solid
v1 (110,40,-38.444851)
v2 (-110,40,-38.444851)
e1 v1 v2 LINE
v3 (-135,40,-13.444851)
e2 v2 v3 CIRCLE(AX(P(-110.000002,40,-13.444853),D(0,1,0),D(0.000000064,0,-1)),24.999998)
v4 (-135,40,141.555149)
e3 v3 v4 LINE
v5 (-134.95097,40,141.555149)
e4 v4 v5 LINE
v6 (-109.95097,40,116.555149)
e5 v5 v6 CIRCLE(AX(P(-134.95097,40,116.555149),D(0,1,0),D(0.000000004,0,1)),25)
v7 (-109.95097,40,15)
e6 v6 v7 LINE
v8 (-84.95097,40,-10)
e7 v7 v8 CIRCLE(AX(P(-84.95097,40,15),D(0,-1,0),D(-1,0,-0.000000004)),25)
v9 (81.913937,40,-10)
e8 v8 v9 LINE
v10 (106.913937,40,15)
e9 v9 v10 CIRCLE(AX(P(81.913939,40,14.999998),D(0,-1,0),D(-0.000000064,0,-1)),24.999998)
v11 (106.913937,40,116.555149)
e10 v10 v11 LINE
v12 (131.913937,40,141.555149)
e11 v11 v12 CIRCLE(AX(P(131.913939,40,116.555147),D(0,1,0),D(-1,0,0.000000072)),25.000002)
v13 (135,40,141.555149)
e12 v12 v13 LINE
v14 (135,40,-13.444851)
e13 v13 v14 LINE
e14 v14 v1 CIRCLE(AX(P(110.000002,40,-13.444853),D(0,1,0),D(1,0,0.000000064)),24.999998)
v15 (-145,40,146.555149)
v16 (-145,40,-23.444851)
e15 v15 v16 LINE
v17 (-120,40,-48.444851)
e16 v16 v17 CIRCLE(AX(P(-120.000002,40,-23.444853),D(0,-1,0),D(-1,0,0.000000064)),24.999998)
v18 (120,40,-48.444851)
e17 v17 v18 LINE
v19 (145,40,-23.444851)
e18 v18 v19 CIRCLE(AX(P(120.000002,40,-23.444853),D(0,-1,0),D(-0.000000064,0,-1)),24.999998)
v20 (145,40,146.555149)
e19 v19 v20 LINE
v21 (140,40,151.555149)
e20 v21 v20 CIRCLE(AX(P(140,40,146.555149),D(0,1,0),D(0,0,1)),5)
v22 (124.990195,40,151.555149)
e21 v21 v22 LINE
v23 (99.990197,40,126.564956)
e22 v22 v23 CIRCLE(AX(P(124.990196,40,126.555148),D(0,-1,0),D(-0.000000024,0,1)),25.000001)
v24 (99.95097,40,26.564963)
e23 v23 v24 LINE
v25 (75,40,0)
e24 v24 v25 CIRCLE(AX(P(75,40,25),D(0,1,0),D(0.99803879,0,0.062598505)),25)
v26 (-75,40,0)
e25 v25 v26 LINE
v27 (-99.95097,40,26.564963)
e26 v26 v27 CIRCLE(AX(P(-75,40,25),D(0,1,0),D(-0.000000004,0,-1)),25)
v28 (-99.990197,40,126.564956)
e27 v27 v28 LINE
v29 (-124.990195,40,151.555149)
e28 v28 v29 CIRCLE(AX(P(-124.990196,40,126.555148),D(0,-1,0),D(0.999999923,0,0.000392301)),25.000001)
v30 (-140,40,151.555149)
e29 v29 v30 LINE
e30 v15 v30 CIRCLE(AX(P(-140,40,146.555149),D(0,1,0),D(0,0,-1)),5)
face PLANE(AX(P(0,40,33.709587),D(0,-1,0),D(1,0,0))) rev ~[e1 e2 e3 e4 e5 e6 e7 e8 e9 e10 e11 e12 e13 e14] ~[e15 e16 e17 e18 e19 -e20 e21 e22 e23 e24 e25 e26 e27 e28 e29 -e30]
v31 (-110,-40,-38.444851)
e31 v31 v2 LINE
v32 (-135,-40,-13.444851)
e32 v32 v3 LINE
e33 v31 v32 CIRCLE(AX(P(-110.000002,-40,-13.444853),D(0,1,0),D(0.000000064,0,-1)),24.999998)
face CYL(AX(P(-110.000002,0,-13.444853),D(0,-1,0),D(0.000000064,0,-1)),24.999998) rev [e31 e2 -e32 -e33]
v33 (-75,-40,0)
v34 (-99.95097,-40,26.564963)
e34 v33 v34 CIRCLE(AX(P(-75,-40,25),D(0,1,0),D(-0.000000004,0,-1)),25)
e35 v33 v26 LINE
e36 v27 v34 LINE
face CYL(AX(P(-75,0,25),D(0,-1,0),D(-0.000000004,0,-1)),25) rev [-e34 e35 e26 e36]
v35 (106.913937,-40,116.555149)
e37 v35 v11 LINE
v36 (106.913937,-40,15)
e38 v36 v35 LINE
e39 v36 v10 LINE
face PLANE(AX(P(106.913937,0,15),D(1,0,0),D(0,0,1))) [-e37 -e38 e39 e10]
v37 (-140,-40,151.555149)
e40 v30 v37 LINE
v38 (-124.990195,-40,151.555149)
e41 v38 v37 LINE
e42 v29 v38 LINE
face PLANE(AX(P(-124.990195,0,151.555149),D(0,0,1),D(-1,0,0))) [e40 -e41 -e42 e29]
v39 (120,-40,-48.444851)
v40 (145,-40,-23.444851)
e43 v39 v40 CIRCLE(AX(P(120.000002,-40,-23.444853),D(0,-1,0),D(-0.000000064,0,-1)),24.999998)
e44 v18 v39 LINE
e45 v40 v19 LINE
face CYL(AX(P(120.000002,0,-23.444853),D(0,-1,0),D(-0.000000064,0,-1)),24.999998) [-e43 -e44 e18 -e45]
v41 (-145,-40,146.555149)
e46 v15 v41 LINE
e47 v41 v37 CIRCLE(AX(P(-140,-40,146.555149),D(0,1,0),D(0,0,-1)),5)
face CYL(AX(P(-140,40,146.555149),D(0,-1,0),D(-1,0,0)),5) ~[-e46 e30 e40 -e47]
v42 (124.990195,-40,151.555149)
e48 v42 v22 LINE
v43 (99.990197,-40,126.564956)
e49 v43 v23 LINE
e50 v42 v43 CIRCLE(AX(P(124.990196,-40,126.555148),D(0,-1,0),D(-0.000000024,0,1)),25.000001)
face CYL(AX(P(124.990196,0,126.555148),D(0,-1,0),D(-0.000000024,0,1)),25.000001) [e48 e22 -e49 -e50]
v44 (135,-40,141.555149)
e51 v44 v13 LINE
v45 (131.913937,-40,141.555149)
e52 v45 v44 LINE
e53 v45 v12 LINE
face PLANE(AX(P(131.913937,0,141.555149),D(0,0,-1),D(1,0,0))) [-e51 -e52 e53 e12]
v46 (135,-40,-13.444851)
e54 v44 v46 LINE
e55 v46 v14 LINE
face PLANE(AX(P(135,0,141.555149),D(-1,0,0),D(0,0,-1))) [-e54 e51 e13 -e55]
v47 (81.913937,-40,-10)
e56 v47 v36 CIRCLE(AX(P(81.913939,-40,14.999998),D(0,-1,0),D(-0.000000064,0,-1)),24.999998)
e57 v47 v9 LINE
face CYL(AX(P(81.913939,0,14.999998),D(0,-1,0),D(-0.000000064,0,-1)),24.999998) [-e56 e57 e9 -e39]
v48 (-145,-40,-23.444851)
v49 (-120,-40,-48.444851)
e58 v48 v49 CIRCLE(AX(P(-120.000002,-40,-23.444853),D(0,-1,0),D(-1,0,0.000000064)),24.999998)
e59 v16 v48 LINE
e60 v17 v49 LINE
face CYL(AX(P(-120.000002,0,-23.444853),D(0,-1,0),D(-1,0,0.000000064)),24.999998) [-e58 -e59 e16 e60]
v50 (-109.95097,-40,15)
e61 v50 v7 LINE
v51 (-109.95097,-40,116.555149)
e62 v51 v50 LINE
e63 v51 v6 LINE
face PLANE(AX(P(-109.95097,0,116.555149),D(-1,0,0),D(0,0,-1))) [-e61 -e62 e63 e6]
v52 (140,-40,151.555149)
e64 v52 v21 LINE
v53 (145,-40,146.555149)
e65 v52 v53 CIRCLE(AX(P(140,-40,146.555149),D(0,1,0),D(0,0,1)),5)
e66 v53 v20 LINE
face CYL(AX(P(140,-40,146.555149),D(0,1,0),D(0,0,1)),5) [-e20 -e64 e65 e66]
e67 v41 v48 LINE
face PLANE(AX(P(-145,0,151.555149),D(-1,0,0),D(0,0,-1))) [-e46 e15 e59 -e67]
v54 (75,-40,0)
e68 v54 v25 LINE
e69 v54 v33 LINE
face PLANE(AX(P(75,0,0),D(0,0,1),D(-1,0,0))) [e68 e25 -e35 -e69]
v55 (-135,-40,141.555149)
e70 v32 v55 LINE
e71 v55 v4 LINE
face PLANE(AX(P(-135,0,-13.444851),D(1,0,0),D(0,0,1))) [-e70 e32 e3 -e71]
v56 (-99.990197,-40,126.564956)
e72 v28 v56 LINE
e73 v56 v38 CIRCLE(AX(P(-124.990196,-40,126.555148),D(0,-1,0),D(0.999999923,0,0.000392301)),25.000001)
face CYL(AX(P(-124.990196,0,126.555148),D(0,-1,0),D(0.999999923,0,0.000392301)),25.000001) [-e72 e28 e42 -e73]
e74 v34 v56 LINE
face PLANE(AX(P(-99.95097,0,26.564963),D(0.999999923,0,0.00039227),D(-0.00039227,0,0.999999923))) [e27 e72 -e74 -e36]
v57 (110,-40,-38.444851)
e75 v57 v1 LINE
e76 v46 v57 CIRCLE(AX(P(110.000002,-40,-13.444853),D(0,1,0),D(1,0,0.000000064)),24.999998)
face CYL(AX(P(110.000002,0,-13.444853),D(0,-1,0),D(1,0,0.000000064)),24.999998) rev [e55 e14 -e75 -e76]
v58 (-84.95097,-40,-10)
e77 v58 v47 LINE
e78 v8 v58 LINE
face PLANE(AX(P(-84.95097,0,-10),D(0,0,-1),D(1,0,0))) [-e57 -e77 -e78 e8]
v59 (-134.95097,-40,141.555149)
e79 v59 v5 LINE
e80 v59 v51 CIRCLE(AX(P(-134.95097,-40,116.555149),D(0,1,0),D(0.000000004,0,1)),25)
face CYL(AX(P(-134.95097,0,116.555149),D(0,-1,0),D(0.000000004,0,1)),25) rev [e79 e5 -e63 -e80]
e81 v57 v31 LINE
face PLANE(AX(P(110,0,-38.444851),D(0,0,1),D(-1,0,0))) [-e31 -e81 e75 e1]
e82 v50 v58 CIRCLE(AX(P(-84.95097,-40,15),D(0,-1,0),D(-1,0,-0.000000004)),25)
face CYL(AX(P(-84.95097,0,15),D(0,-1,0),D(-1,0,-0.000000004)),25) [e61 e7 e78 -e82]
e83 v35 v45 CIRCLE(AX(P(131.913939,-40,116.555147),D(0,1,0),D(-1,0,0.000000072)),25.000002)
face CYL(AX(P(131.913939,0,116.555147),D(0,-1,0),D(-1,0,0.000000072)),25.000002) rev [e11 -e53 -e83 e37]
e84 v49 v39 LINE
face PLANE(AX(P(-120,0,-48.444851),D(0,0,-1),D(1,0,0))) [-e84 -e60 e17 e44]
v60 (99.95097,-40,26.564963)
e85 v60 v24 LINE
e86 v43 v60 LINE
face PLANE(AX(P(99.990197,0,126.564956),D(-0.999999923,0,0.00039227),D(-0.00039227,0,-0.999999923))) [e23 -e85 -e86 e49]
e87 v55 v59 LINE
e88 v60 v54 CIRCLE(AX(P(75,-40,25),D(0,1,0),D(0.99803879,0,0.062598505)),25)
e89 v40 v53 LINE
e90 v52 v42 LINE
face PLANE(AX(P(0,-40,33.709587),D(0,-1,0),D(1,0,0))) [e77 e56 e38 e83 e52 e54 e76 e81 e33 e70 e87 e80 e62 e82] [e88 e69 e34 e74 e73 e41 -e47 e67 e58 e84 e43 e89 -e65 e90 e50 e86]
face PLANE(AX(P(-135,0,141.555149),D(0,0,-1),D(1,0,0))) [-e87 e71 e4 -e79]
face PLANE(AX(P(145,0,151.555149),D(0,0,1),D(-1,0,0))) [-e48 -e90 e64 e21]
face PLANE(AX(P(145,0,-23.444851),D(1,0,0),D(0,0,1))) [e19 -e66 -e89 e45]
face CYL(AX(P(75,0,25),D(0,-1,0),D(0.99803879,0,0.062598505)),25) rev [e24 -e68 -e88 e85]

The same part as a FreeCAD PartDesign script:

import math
import FreeCAD as App
import Part
import Sketcher
from FreeCAD import Vector
Q = App.Units.Quantity


def edges_at(feature, points):
    """Names of the edges that pass closest to the given points."""
    edges = feature.Shape.Edges
    near = lambda p: min(range(len(edges)), key=lambda i: edges[i].distToShape(Part.Vertex(*p))[0])
    return sorted({f"Edge{near(p) + 1}" for p in points})

doc = App.newDocument("Part")
body = doc.addObject("PartDesign::Body", "Body")

# Sketch on XZ plane
sketch1 = doc.addObject("Sketcher::SketchObject", "Sketch")
body.addObject(sketch1)
sketch1.AttachmentSupport = (doc.XZ_Plane, [""])
sketch1.MapMode = "FlatFace"
sketch1.addGeometry([
    Part.ArcOfCircle(Part.Circle(Vector(-75, 25, 0), Vector(0, 0, 1), 25), math.radians(176.411023), math.radians(270)),  # 0
    Part.LineSegment(Vector(-99.95097, 26.564963, 0), Vector(-99.990197, 126.564956, 0)),  # 1
    Part.ArcOfCircle(Part.Circle(Vector(-124.990196, 126.555148, 0), Vector(0, 0, 1), 25.000001), math.radians(0.022477), math.radians(89.999999)),  # 2
    Part.LineSegment(Vector(-124.990195, 151.555149, 0), Vector(-145, 151.555149, 0)),  # 3
    Part.LineSegment(Vector(-145, 151.555149, 0), Vector(-145, -23.444851, 0)),  # 4
    Part.ArcOfCircle(Part.Circle(Vector(-120.000002, -23.444853, 0), Vector(0, 0, 1), 24.999998), math.radians(179.999996), math.radians(270.000004)),  # 5
    Part.LineSegment(Vector(-120, -48.444851, 0), Vector(120, -48.444851, 0)),  # 6
    Part.ArcOfCircle(Part.Circle(Vector(120.000002, -23.444853, 0), Vector(0, 0, 1), 24.999998), math.radians(-90.000004), math.radians(0.000004)),  # 7
    Part.LineSegment(Vector(145, -23.444851, 0), Vector(145, 151.555149, 0)),  # 8
    Part.LineSegment(Vector(145, 151.555149, 0), Vector(124.990195, 151.555149, 0)),  # 9
    Part.ArcOfCircle(Part.Circle(Vector(124.990196, 126.555148, 0), Vector(0, 0, 1), 25.000001), math.radians(90.000001), math.radians(179.977523)),  # 10
    Part.LineSegment(Vector(99.990197, 126.564956, 0), Vector(99.95097, 26.564963, 0)),  # 11
    Part.ArcOfCircle(Part.Circle(Vector(75, 25, 0), Vector(0, 0, 1), 25), math.radians(-90), math.radians(3.588977)),  # 12
    Part.LineSegment(Vector(75, 0, 0), Vector(-75, 0, 0)),  # 13
    Part.ArcOfCircle(Part.Circle(Vector(-84.95097, 15, 0), Vector(0, 0, 1), 25), math.radians(-180), math.radians(-90)),  # 14
    Part.LineSegment(Vector(-84.95097, -10, 0), Vector(81.913937, -10, 0)),  # 15
    Part.ArcOfCircle(Part.Circle(Vector(81.913939, 14.999998, 0), Vector(0, 0, 1), 24.999998), math.radians(-90.000004), math.radians(0.000004)),  # 16
    Part.LineSegment(Vector(106.913937, 15, 0), Vector(106.913937, 116.555149, 0)),  # 17
    Part.ArcOfCircle(Part.Circle(Vector(131.913939, 116.555147, 0), Vector(0, 0, 1), 25.000002), math.radians(90.000004), math.radians(179.999996)),  # 18
    Part.LineSegment(Vector(131.913937, 141.555149, 0), Vector(135, 141.555149, 0)),  # 19
    Part.LineSegment(Vector(135, 141.555149, 0), Vector(135, -13.444851, 0)),  # 20
    Part.ArcOfCircle(Part.Circle(Vector(110.000002, -13.444853, 0), Vector(0, 0, 1), 24.999998), math.radians(-90.000004), math.radians(0.000004)),  # 21
    Part.LineSegment(Vector(110, -38.444851, 0), Vector(-110, -38.444851, 0)),  # 22
    Part.ArcOfCircle(Part.Circle(Vector(-110.000002, -13.444853, 0), Vector(0, 0, 1), 24.999998), math.radians(179.999996), math.radians(270.000004)),  # 23
    Part.LineSegment(Vector(-135, -13.444851, 0), Vector(-135, 141.555149, 0)),  # 24
    Part.LineSegment(Vector(-135, 141.555149, 0), Vector(-134.95097, 141.555149, 0)),  # 25
    Part.ArcOfCircle(Part.Circle(Vector(-134.95097, 116.555149, 0), Vector(0, 0, 1), 25), math.radians(0), math.radians(90)),  # 26
    Part.LineSegment(Vector(-109.95097, 116.555149, 0), Vector(-109.95097, 15, 0)),  # 27
], False)
sketch1.addConstraint([
    Sketcher.Constraint("Coincident", 0, 1, 1, 1),
    Sketcher.Constraint("Tangent", 1, 2, 2, 1),
    Sketcher.Constraint("Tangent", 2, 2, 3, 1),
    Sketcher.Constraint("Coincident", 3, 2, 4, 1),
    Sketcher.Constraint("Tangent", 4, 2, 5, 1),
    Sketcher.Constraint("Tangent", 5, 2, 6, 1),
    Sketcher.Constraint("Tangent", 6, 2, 7, 1),
    Sketcher.Constraint("Tangent", 7, 2, 8, 1),
    Sketcher.Constraint("Coincident", 8, 2, 9, 1),
    Sketcher.Constraint("Tangent", 9, 2, 10, 1),
    Sketcher.Constraint("Tangent", 10, 2, 11, 1),
    Sketcher.Constraint("Coincident", 11, 2, 12, 2),
    Sketcher.Constraint("Tangent", 12, 1, 13, 1),
    Sketcher.Constraint("Tangent", 13, 2, 0, 2),
    Sketcher.Constraint("Tangent", 14, 2, 15, 1),
    Sketcher.Constraint("Tangent", 15, 2, 16, 1),
    Sketcher.Constraint("Tangent", 16, 2, 17, 1),
    Sketcher.Constraint("Tangent", 17, 2, 18, 2),
    Sketcher.Constraint("Tangent", 18, 1, 19, 1),
    Sketcher.Constraint("Coincident", 19, 2, 20, 1),
    Sketcher.Constraint("Tangent", 20, 2, 21, 2),
    Sketcher.Constraint("Tangent", 21, 1, 22, 1),
    Sketcher.Constraint("Tangent", 22, 2, 23, 2),
    Sketcher.Constraint("Tangent", 23, 1, 24, 1),
    Sketcher.Constraint("Coincident", 24, 2, 25, 1),
    Sketcher.Constraint("Tangent", 25, 2, 26, 2),
    Sketcher.Constraint("Tangent", 26, 1, 27, 1),
    Sketcher.Constraint("Tangent", 27, 2, 14, 1),
    Sketcher.Constraint("Horizontal", 3),
    Sketcher.Constraint("Vertical", 4),
    Sketcher.Constraint("Horizontal", 6),
    Sketcher.Constraint("Vertical", 8),
    Sketcher.Constraint("Horizontal", 9),
    Sketcher.Constraint("Horizontal", 13),
    Sketcher.Constraint("Horizontal", 15),
    Sketcher.Constraint("Vertical", 17),
    Sketcher.Constraint("Horizontal", 19),
    Sketcher.Constraint("Vertical", 20),
    Sketcher.Constraint("Horizontal", 22),
    Sketcher.Constraint("Vertical", 24),
    Sketcher.Constraint("Vertical", 27),
    Sketcher.Constraint("Equal", 0, 2),
    Sketcher.Constraint("Equal", 0, 5),
    Sketcher.Constraint("Equal", 5, 7),
    Sketcher.Constraint("Equal", 2, 10),
    Sketcher.Constraint("Equal", 10, 12),
    Sketcher.Constraint("Equal", 12, 14),
    Sketcher.Constraint("Equal", 14, 16),
    Sketcher.Constraint("Equal", 14, 18),
    Sketcher.Constraint("Equal", 16, 21),
    Sketcher.Constraint("Equal", 21, 23),
    Sketcher.Constraint("Equal", 23, 26),
    Sketcher.Constraint("Symmetric", 12, 1, 13, 2, -1, 1),
    Sketcher.Constraint("Symmetric", 2, 3, 10, 3, -2),
    Sketcher.Constraint("Symmetric", 19, 2, 24, 2, -2),
    Sketcher.Constraint("Horizontal", 0, 1, 11, 2),
    Sketcher.Constraint("Vertical", 26, 3, 25, 2),
    Sketcher.Constraint("Equal", 3, 9),
    Sketcher.Constraint("Radius", 0, Q("25 mm")),
    Sketcher.Constraint("DistanceX", 6, 1, 6, 2, Q("240 mm")),
    Sketcher.Constraint("DistanceX", 13, 2, 13, 1, Q("150 mm")),
    Sketcher.Constraint("DistanceX", 22, 2, 22, 1, Q("220 mm")),
    Sketcher.Constraint("DistanceY", 4, 2, 4, 1, Q("175 mm")),
    Sketcher.Constraint("DistanceY", 20, 2, 20, 1, Q("155 mm")),
    Sketcher.Constraint("Distance", 1, Q("100.000001 mm")),
    Sketcher.Constraint("DistanceY", -1, 1, 14, 3, Q("15 mm")),
    Sketcher.Constraint("DistanceY", 18, 3, 10, 3, Q("10.000001 mm")),
    Sketcher.Constraint("DistanceX", 0, 1, 14, 3, Q("15 mm")),
    Sketcher.Constraint("DistanceX", 25, 1, 25, 2, Q("0.04903 mm")),
    Sketcher.Constraint("DistanceY", 17, 1, 17, 2, Q("101.555149 mm")),
    Sketcher.Constraint("DistanceX", 15, 1, 15, 2, Q("166.864907 mm")),
])
pad1 = doc.addObject("PartDesign::Pad", "Pad")
body.addObject(pad1)
pad1.Profile = sketch1
pad1.Length = 80
pad1.Midplane = True
doc.recompute()

fillet = doc.addObject("PartDesign::Fillet", "Fillet")
body.addObject(fillet)
fillet.Base = (pad1, edges_at(pad1, [(-145, 0, 151.555), (145, 0, 151.555)]))
fillet.Radius = 5

doc.recompute()
